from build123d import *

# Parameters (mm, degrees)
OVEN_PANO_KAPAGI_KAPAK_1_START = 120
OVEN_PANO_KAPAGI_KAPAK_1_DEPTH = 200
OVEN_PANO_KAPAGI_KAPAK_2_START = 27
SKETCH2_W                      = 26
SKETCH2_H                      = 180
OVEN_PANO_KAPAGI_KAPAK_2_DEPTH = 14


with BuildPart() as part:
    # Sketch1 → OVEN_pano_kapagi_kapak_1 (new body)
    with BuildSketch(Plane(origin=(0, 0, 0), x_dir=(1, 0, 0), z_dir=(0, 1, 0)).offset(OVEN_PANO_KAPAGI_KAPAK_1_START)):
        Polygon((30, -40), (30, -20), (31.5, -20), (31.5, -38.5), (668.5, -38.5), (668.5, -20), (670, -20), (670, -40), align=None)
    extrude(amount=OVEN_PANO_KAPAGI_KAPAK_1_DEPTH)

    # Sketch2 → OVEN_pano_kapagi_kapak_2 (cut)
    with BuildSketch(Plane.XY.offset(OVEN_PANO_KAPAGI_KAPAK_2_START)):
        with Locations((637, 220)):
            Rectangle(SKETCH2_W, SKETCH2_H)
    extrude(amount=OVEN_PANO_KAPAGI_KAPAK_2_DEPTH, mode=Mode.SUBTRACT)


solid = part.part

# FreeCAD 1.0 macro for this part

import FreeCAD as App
import Part
import Sketcher

V = App.Vector


def add_polygon(sketch, points):
    """Adds a closed chain of lines whose ends are joined by coincident constraints."""
    first, n = sketch.GeometryCount, len(points)
    for a, b in zip(points, points[1:] + points[:1]):
        sketch.addGeometry(Part.LineSegment(App.Vector(*a, 0), App.Vector(*b, 0)), False)
    for i in range(n):
        sketch.addConstraint(Sketcher.Constraint("Coincident", first + i, 2, first + (i + 1) % n, 1))

doc = App.newDocument("Part")
body = doc.addObject("PartDesign::Body", "Body")

sketch1 = doc.addObject("Sketcher::SketchObject", "Sketch")
body.addObject(sketch1)
sketch1.AttachmentSupport = (doc.XZ_Plane, [""])
sketch1.MapMode = "FlatFace"
sketch1.AttachmentOffset = App.Placement(V(0, 0, -120), App.Rotation())
add_polygon(sketch1, [(30, 20), (30, 40), (670, 40), (670, 20), (668.5, 20), (668.5, 38.5), (31.5, 38.5), (31.5, 20)])
sketch1.addConstraint(Sketcher.Constraint("Vertical", 0))
sketch1.addConstraint(Sketcher.Constraint("Horizontal", 1))
sketch1.addConstraint(Sketcher.Constraint("Vertical", 2))
sketch1.addConstraint(Sketcher.Constraint("Horizontal", 3))
sketch1.addConstraint(Sketcher.Constraint("Vertical", 4))
sketch1.addConstraint(Sketcher.Constraint("Horizontal", 5))
sketch1.addConstraint(Sketcher.Constraint("Vertical", 6))
sketch1.addConstraint(Sketcher.Constraint("Horizontal", 7))
sketch1.addConstraint(Sketcher.Constraint("Horizontal", 3, 2, 6, 2))
sketch1.addConstraint(Sketcher.Constraint("Equal", 3, 7))
sketch1.addConstraint(Sketcher.Constraint("DistanceX", 1, 1, 1, 2, 640.0))
sketch1.addConstraint(Sketcher.Constraint("DistanceX", 5, 2, 5, 1, 637.0))
sketch1.addConstraint(Sketcher.Constraint("DistanceY", 0, 1, 0, 2, 20.0))
sketch1.addConstraint(Sketcher.Constraint("DistanceY", 4, 1, 4, 2, 18.5))
sketch1.addConstraint(Sketcher.Constraint("DistanceX", -1, 1, 0, 2, 30.0))
sketch1.addConstraint(Sketcher.Constraint("DistanceY", -1, 1, 0, 2, 40.0))
pad1 = doc.addObject("PartDesign::Pad", "Pad")
body.addObject(pad1)
pad1.Profile = sketch1
pad1.Length = 200
pad1.Reversed = True

sketch2 = doc.addObject("Sketcher::SketchObject", "Sketch001")
body.addObject(sketch2)
sketch2.AttachmentSupport = (doc.XY_Plane, [""])
sketch2.MapMode = "FlatFace"
sketch2.AttachmentOffset = App.Placement(V(0, 0, 27), App.Rotation())
add_polygon(sketch2, [(624, 310), (624, 130), (650, 130), (650, 310)])
sketch2.addConstraint(Sketcher.Constraint("Vertical", 0))
sketch2.addConstraint(Sketcher.Constraint("Horizontal", 1))
sketch2.addConstraint(Sketcher.Constraint("Vertical", 2))
sketch2.addConstraint(Sketcher.Constraint("Horizontal", 3))
sketch2.addConstraint(Sketcher.Constraint("DistanceX", 1, 1, 1, 2, 26.0))
sketch2.addConstraint(Sketcher.Constraint("DistanceY", 0, 2, 0, 1, 180.0))
sketch2.addConstraint(Sketcher.Constraint("DistanceX", -1, 1, 0, 2, 624.0))
sketch2.addConstraint(Sketcher.Constraint("DistanceY", -1, 1, 0, 2, 130.0))
pocket1 = doc.addObject("PartDesign::Pocket", "Pocket")
body.addObject(pocket1)
pocket1.Profile = sketch2
pocket1.Length = 14
pocket1.Reversed = True

doc.recompute()
